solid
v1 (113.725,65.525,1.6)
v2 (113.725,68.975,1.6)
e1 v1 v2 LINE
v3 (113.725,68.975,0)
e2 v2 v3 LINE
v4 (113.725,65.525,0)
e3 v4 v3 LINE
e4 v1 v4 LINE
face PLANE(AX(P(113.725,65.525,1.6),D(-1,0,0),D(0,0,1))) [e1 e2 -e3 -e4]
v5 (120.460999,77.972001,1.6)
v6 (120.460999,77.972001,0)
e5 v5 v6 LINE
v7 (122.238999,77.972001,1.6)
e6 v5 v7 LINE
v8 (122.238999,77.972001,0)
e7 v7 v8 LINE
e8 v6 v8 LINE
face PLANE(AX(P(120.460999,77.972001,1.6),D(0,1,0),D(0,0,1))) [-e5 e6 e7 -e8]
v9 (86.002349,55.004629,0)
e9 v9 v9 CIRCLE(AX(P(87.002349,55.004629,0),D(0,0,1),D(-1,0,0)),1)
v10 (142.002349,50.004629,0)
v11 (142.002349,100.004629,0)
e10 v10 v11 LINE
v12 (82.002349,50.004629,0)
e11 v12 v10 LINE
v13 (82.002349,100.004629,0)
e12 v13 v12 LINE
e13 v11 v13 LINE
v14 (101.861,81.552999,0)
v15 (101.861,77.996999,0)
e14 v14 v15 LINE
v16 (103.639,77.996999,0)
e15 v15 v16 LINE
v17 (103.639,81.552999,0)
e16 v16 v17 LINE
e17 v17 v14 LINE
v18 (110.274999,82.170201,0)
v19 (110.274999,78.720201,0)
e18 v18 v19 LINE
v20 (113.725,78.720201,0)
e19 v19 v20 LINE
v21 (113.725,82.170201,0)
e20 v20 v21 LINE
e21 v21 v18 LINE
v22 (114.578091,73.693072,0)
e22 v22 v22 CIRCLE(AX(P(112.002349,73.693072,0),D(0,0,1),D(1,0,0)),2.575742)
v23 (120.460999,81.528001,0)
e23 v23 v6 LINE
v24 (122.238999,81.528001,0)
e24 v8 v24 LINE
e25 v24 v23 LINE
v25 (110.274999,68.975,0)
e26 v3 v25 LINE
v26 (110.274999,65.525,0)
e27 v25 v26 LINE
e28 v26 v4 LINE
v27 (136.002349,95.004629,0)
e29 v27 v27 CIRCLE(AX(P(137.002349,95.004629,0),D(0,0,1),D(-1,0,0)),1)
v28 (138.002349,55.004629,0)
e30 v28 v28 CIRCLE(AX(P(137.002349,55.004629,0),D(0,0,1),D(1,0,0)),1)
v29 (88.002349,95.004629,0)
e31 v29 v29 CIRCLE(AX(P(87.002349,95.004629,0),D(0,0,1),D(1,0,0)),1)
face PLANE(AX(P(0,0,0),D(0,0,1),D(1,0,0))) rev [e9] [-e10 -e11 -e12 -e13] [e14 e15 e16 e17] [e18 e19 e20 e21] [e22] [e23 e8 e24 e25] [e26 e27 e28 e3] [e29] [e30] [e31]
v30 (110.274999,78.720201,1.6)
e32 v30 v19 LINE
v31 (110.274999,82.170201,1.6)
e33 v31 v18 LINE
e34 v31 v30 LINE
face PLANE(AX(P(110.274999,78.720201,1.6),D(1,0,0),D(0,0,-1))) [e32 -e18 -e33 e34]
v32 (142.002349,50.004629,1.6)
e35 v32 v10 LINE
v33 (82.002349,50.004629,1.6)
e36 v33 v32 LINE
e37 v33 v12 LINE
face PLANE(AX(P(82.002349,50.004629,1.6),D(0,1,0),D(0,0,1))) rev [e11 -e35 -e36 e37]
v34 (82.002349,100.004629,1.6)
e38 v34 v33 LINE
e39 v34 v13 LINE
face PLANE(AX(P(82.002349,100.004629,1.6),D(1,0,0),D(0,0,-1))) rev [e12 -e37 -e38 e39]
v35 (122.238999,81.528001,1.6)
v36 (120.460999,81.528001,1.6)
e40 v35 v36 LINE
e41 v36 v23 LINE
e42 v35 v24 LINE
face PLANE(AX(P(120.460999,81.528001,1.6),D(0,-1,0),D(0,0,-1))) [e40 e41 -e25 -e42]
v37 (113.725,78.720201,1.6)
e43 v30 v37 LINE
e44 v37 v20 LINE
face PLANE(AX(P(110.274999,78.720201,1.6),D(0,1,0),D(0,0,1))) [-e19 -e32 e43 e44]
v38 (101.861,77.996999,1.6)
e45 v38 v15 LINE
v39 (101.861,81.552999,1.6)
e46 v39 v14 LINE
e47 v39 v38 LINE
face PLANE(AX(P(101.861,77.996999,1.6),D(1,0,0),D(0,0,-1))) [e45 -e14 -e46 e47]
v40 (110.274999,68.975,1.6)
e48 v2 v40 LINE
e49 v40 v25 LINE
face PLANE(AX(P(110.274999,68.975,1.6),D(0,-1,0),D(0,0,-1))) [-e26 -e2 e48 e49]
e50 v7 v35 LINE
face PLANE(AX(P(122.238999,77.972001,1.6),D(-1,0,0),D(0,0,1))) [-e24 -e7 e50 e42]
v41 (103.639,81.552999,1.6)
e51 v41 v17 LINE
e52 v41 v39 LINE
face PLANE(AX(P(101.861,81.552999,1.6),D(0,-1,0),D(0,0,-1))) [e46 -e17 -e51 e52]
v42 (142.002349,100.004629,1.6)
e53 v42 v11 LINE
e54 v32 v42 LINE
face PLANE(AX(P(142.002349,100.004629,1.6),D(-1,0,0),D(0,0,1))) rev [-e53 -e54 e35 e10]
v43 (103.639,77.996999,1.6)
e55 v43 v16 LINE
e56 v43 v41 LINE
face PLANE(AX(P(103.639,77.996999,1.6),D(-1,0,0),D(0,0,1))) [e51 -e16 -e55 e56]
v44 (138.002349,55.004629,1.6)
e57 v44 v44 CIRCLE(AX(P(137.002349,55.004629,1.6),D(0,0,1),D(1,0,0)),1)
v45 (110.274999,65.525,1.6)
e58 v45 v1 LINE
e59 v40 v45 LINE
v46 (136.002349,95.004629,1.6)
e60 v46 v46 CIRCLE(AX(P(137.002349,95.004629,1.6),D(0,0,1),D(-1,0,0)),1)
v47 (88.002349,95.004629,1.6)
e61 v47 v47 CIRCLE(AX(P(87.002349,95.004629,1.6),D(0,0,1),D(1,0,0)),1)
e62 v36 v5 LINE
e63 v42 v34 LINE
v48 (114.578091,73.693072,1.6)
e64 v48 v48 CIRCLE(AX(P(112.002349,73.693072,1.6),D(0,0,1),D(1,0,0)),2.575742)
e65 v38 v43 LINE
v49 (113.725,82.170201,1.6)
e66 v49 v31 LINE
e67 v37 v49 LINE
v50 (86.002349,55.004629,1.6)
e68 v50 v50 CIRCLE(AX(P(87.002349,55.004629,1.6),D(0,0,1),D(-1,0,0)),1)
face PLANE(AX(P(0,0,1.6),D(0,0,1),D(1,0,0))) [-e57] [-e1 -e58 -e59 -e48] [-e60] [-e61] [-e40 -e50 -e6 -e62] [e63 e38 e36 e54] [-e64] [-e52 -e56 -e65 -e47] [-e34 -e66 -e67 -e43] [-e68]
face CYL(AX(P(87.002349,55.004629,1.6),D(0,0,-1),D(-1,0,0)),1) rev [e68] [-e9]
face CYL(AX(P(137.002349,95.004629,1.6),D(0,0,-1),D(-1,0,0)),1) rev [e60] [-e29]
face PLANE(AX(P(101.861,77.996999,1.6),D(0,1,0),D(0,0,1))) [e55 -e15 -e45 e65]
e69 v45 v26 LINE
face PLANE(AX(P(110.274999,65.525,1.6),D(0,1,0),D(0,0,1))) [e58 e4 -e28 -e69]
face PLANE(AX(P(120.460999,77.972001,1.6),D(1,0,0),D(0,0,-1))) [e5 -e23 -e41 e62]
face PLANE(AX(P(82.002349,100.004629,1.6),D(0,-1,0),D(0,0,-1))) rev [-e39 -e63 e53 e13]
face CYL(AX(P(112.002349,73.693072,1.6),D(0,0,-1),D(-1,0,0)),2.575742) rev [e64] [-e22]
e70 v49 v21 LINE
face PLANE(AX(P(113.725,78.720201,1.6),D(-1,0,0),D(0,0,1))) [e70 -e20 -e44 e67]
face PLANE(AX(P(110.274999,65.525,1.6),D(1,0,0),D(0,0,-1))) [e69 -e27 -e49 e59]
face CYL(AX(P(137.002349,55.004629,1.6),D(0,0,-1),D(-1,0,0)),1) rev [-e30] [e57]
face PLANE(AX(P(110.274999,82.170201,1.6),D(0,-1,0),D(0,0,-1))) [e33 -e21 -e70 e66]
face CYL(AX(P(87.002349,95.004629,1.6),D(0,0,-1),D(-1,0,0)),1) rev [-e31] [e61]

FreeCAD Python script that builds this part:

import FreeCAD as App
import Part
import Sketcher


def add_polygon(sketch, points):
    """Adds a closed chain of lines whose ends are joined by coincident constraints."""
    first, n = sketch.GeometryCount, len(points)
    for a, b in zip(points, points[1:] + points[:1]):
        sketch.addGeometry(Part.LineSegment(App.Vector(*a, 0), App.Vector(*b, 0)), False)
    for i in range(n):
        sketch.addConstraint(Sketcher.Constraint("Coincident", first + i, 2, first + (i + 1) % n, 1))

doc = App.newDocument("Part")
params = doc.addObject("Spreadsheet::Sheet", "Params")
for row, (alias, value) in enumerate([
    ("sketch1_diameter", "2 mm"),
    ("sketch1_width", "60 mm"),
    ("sketch1_height", "50 mm"),
    ("sketch1_width2", "3.450001 mm"),
    ("pad1_length", "1.6 mm"),
], start=1):
    params.set(f"A{row}", alias)
    params.set(f"B{row}", "=" + value)
    params.setAlias(f"B{row}", alias)

body = doc.addObject("PartDesign::Body", "Body")

# Sketch on XY plane
sketch1 = doc.addObject("Sketcher::SketchObject", "Sketch")
body.addObject(sketch1)
sketch1.AttachmentSupport = (doc.XY_Plane, [""])
sketch1.MapMode = "FlatFace"
add_polygon(sketch1, [(82, 100), (82, 50), (142, 50), (142, 100)])  # lines 0-3
sketch1.addGeometry(Part.Circle(App.Vector(87, 55, 0), App.Vector(0, 0, 1), 1), False)  # 4
add_polygon(sketch1, [(113.7, 65.5), (110.3, 65.5), (110.3, 69), (113.7, 69)])  # lines 5-8
sketch1.addGeometry(Part.Circle(App.Vector(137, 55, 0), App.Vector(0, 0, 1), 1), False)  # 9
sketch1.addGeometry(Part.Circle(App.Vector(112, 73.7, 0), App.Vector(0, 0, 1), 2.6), False)  # 10
add_polygon(sketch1, [(103.6, 78), (101.9, 78), (101.9, 81.6), (103.6, 81.6)])  # lines 11-14
add_polygon(sketch1, [(113.7, 78.7), (110.3, 78.7), (110.3, 82.2), (113.7, 82.2)])  # lines 15-18
sketch1.addGeometry(Part.Circle(App.Vector(87, 95, 0), App.Vector(0, 0, 1), 1), False)  # 19
add_polygon(sketch1, [(122.2, 78), (120.5, 78), (120.5, 81.5), (122.2, 81.5)])  # lines 20-23
sketch1.addGeometry(Part.Circle(App.Vector(137, 95, 0), App.Vector(0, 0, 1), 1), False)  # 24
sketch1.addConstraint([
    Sketcher.Constraint("Vertical", 0),
    Sketcher.Constraint("Horizontal", 1),
    Sketcher.Constraint("Vertical", 2),
    Sketcher.Constraint("Horizontal", 3),
    Sketcher.Constraint("Horizontal", 5),
    Sketcher.Constraint("Vertical", 6),
    Sketcher.Constraint("Horizontal", 7),
    Sketcher.Constraint("Vertical", 8),
    Sketcher.Constraint("Horizontal", 11),
    Sketcher.Constraint("Vertical", 12),
    Sketcher.Constraint("Horizontal", 13),
    Sketcher.Constraint("Vertical", 14),
    Sketcher.Constraint("Horizontal", 15),
    Sketcher.Constraint("Vertical", 16),
    Sketcher.Constraint("Horizontal", 17),
    Sketcher.Constraint("Vertical", 18),
    Sketcher.Constraint("Horizontal", 20),
    Sketcher.Constraint("Vertical", 21),
    Sketcher.Constraint("Horizontal", 22),
    Sketcher.Constraint("Vertical", 23),
    Sketcher.Constraint("Equal", 4, 9),
    Sketcher.Constraint("Equal", 9, 19),
    Sketcher.Constraint("Equal", 19, 24),
    Sketcher.Constraint("Horizontal", 4, 3, 9, 3),
    Sketcher.Constraint("Horizontal", 19, 3, 24, 3),
    Sketcher.Constraint("Vertical", 4, 3, 19, 3),
    Sketcher.Constraint("Vertical", 9, 3, 24, 3),
    Sketcher.Constraint("Vertical", 6, 2, 15, 2),
    Sketcher.Constraint("Vertical", 8, 2, 17, 2),
    Sketcher.Constraint("Equal", 13, 20),
    Sketcher.Constraint("Equal", 17, 6),
    Sketcher.Constraint("Equal", 8, 16),
    Sketcher.Constraint("Equal", 14, 21),
    Sketcher.Constraint("Diameter", 4, 2.0),
    Sketcher.Constraint("DistanceX", 1, 1, 1, 2, 60.0),
    Sketcher.Constraint("DistanceY", 0, 2, 0, 1, 50.0),
    Sketcher.Constraint("DistanceX", 4, 3, 9, 3, 50.0),
    Sketcher.Constraint("DistanceX", 4, 3, 10, 3, 25.0),
    Sketcher.Constraint("DistanceY", 4, 3, 19, 3, 40.0),
    Sketcher.Constraint("DistanceX", 0, 2, 4, 3, 5.0),
    Sketcher.Constraint("DistanceY", 0, 2, 4, 3, 5.0),
    Sketcher.Constraint("DistanceX", 5, 2, 5, 1, 3.450001),
    Sketcher.Constraint("DistanceX", 11, 2, 11, 1, 1.778),
    Sketcher.Constraint("DistanceY", 12, 1, 12, 2, 3.556),
    Sketcher.Constraint("Diameter", 10, 5.151485),
    Sketcher.Constraint("DistanceX", -1, 1, 5, 2, 110.274999),
    Sketcher.Constraint("DistanceY", -1, 1, 5, 2, 65.525),
    Sketcher.Constraint("DistanceX", -1, 1, 11, 2, 101.861),
    Sketcher.Constraint("DistanceY", -1, 1, 11, 2, 77.996999),
    Sketcher.Constraint("DistanceX", -1, 1, 20, 2, 120.460999),
    Sketcher.Constraint("DistanceY", -1, 1, 20, 2, 77.972001),
    Sketcher.Constraint("DistanceY", -1, 1, 15, 2, 78.720201),
    Sketcher.Constraint("DistanceX", -1, 1, 4, 3, 87.002349),
    Sketcher.Constraint("DistanceY", -1, 1, 4, 3, 55.004629),
    Sketcher.Constraint("DistanceY", -1, 1, 10, 3, 73.693072),
])
sketch1.setExpression("Constraints[53]", "Params.sketch1_diameter")
sketch1.setExpression("Constraints[54]", "Params.sketch1_width")
sketch1.setExpression("Constraints[55]", "Params.sketch1_height")
sketch1.setExpression("Constraints[61]", "Params.sketch1_width2")
pad1 = doc.addObject("PartDesign::Pad", "Pad")
body.addObject(pad1)
pad1.Profile = sketch1
pad1.setExpression("Length", "Params.pad1_length")

doc.recompute()
